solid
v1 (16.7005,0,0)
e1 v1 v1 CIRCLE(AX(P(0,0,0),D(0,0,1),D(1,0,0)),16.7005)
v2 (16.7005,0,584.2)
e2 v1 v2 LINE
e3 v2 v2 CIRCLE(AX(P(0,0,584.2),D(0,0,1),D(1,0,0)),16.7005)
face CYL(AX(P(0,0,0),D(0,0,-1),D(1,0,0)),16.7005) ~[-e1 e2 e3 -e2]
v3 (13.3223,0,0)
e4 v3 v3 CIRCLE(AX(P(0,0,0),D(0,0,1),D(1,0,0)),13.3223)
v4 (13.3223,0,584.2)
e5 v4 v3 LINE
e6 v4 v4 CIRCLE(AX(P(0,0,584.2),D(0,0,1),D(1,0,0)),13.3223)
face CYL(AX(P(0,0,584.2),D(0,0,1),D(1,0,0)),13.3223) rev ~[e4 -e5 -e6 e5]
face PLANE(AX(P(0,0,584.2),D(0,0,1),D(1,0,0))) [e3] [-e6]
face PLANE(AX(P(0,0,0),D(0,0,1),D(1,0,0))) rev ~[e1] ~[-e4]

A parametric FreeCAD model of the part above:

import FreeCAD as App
import Part
import Sketcher

V = App.Vector
Q = App.Units.Quantity

doc = App.newDocument("Part")
body = doc.addObject("PartDesign::Body", "Body")

sketch1 = doc.addObject("Sketcher::SketchObject", "Sketch")
body.addObject(sketch1)
sketch1.AttachmentSupport = (doc.XY_Plane, [""])
sketch1.MapMode = "FlatFace"
sketch1.addGeometry(Part.Circle(V(0, 0, 0), V(0, 0, 1), 17), False)
sketch1.addConstraint([
    Sketcher.Constraint("Coincident", 0, 3, -1, 1),
    Sketcher.Constraint("Diameter", 0, Q("1.315 in")),
])
pad1 = doc.addObject("PartDesign::Pad", "Pad")
body.addObject(pad1)
pad1.Profile = sketch1
pad1.Length = Q("23 in")

sketch2 = doc.addObject("Sketcher::SketchObject", "Sketch001")
body.addObject(sketch2)
sketch2.AttachmentSupport = (doc.XY_Plane, [""])
sketch2.MapMode = "FlatFace"
sketch2.AttachmentOffset = App.Placement(V(0, 0, 23 * 25.4), App.Rotation())
sketch2.addGeometry(Part.Circle(V(0, 0, 0), V(0, 0, 1), 13), False)
sketch2.addConstraint([
    Sketcher.Constraint("Coincident", 0, 3, -1, 1),
    Sketcher.Constraint("Diameter", 0, Q("1.049 in")),
])
pocket1 = doc.addObject("PartDesign::Pocket", "Pocket")
body.addObject(pocket1)
pocket1.Profile = sketch2
pocket1.Length = Q("23 in")

doc.recompute()
